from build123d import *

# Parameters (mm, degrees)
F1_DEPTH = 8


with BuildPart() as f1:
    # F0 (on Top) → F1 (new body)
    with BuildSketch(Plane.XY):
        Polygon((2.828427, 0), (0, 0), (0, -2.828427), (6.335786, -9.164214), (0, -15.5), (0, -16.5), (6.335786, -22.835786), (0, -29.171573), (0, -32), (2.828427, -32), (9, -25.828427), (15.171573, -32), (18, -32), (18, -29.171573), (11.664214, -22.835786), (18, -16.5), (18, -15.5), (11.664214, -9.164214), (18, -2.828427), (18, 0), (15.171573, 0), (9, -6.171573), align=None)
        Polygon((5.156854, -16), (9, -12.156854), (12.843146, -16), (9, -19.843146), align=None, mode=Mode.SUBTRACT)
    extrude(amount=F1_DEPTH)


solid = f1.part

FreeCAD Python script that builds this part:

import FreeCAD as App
import Part
import Sketcher

doc = App.newDocument("Part")
params = doc.addObject("Spreadsheet::Sheet", "Params")
for row, (alias, value) in enumerate([
    ("sketch1_height", "1 mm"),
    ("pad1_length", "8 mm"),
], start=1):
    params.set(f"A{row}", alias)
    params.set(f"B{row}", "=" + value)
    params.setAlias(f"B{row}", alias)

body = doc.addObject("PartDesign::Body", "Body")

# Sketch on XY plane
sketch1 = body.newObject("Sketcher::SketchObject", "Sketch")
sketch1.AttachmentSupport = (doc.getObject("XY_Plane"), [""])
sketch1.MapMode = "FlatFace"
sketch1.addGeometry([
    Part.LineSegment(App.Vector(2.828427, 0, 0), App.Vector(0, 0, 0)),  # 0
    Part.LineSegment(App.Vector(0, 0, 0), App.Vector(0, -2.828427, 0)),  # 1
    Part.LineSegment(App.Vector(0, -2.828427, 0), App.Vector(6.335786, -9.164214, 0)),  # 2
    Part.LineSegment(App.Vector(6.335786, -9.164214, 0), App.Vector(0, -15.5, 0)),  # 3
    Part.LineSegment(App.Vector(0, -15.5, 0), App.Vector(0, -16.5, 0)),  # 4
    Part.LineSegment(App.Vector(0, -16.5, 0), App.Vector(6.335786, -22.835786, 0)),  # 5
    Part.LineSegment(App.Vector(6.335786, -22.835786, 0), App.Vector(0, -29.171573, 0)),  # 6
    Part.LineSegment(App.Vector(0, -29.171573, 0), App.Vector(0, -32, 0)),  # 7
    Part.LineSegment(App.Vector(0, -32, 0), App.Vector(2.828427, -32, 0)),  # 8
    Part.LineSegment(App.Vector(2.828427, -32, 0), App.Vector(9, -25.828427, 0)),  # 9
    Part.LineSegment(App.Vector(9, -25.828427, 0), App.Vector(15.171573, -32, 0)),  # 10
    Part.LineSegment(App.Vector(15.171573, -32, 0), App.Vector(18, -32, 0)),  # 11
    Part.LineSegment(App.Vector(18, -32, 0), App.Vector(18, -29.171573, 0)),  # 12
    Part.LineSegment(App.Vector(18, -29.171573, 0), App.Vector(11.664214, -22.835786, 0)),  # 13
    Part.LineSegment(App.Vector(11.664214, -22.835786, 0), App.Vector(18, -16.5, 0)),  # 14
    Part.LineSegment(App.Vector(18, -16.5, 0), App.Vector(18, -15.5, 0)),  # 15
    Part.LineSegment(App.Vector(18, -15.5, 0), App.Vector(11.664214, -9.164214, 0)),  # 16
    Part.LineSegment(App.Vector(11.664214, -9.164214, 0), App.Vector(18, -2.828427, 0)),  # 17
    Part.LineSegment(App.Vector(18, -2.828427, 0), App.Vector(18, 0, 0)),  # 18
    Part.LineSegment(App.Vector(18, 0, 0), App.Vector(15.171573, 0, 0)),  # 19
    Part.LineSegment(App.Vector(15.171573, 0, 0), App.Vector(9, -6.171573, 0)),  # 20
    Part.LineSegment(App.Vector(9, -6.171573, 0), App.Vector(2.828427, 0, 0)),  # 21
    Part.LineSegment(App.Vector(9, -19.843146, 0), App.Vector(5.156854, -16, 0)),  # 22
    Part.LineSegment(App.Vector(5.156854, -16, 0), App.Vector(9, -12.156854, 0)),  # 23
    Part.LineSegment(App.Vector(9, -12.156854, 0), App.Vector(12.843146, -16, 0)),  # 24
    Part.LineSegment(App.Vector(12.843146, -16, 0), App.Vector(9, -19.843146, 0)),  # 25
], False)
sketch1.addConstraint([
    Sketcher.Constraint("Coincident", 0, 2, 1, 1),
    Sketcher.Constraint("Coincident", 1, 2, 2, 1),
    Sketcher.Constraint("Coincident", 2, 2, 3, 1),
    Sketcher.Constraint("Coincident", 3, 2, 4, 1),
    Sketcher.Constraint("Coincident", 4, 2, 5, 1),
    Sketcher.Constraint("Coincident", 5, 2, 6, 1),
    Sketcher.Constraint("Coincident", 6, 2, 7, 1),
    Sketcher.Constraint("Coincident", 7, 2, 8, 1),
    Sketcher.Constraint("Coincident", 8, 2, 9, 1),
    Sketcher.Constraint("Coincident", 9, 2, 10, 1),
    Sketcher.Constraint("Coincident", 10, 2, 11, 1),
    Sketcher.Constraint("Coincident", 11, 2, 12, 1),
    Sketcher.Constraint("Coincident", 12, 2, 13, 1),
    Sketcher.Constraint("Coincident", 13, 2, 14, 1),
    Sketcher.Constraint("Coincident", 14, 2, 15, 1),
    Sketcher.Constraint("Coincident", 15, 2, 16, 1),
    Sketcher.Constraint("Coincident", 16, 2, 17, 1),
    Sketcher.Constraint("Coincident", 17, 2, 18, 1),
    Sketcher.Constraint("Coincident", 18, 2, 19, 1),
    Sketcher.Constraint("Coincident", 19, 2, 20, 1),
    Sketcher.Constraint("Coincident", 20, 2, 21, 1),
    Sketcher.Constraint("Coincident", 21, 2, 0, 1),
    Sketcher.Constraint("Coincident", 22, 2, 23, 1),
    Sketcher.Constraint("Coincident", 23, 2, 24, 1),
    Sketcher.Constraint("Coincident", 24, 2, 25, 1),
    Sketcher.Constraint("Coincident", 25, 2, 22, 1),
    Sketcher.Constraint("Horizontal", 0),
    Sketcher.Constraint("Vertical", 1),
    Sketcher.Constraint("Vertical", 4),
    Sketcher.Constraint("Vertical", 7),
    Sketcher.Constraint("Horizontal", 8),
    Sketcher.Constraint("Horizontal", 11),
    Sketcher.Constraint("Vertical", 12),
    Sketcher.Constraint("Vertical", 15),
    Sketcher.Constraint("Vertical", 18),
    Sketcher.Constraint("Horizontal", 19),
    Sketcher.Constraint("Coincident", 0, 2, -1, 1),
    Sketcher.Constraint("PointOnObject", 3, 2, -2),
    Sketcher.Constraint("PointOnObject", 6, 2, -2),
    Sketcher.Constraint("PointOnObject", 18, 2, -1),
    Sketcher.Constraint("Perpendicular", 2, 3),
    Sketcher.Constraint("Perpendicular", 3, 5),
    Sketcher.Constraint("Perpendicular", 5, 6),
    Sketcher.Constraint("Parallel", 6, 9),
    Sketcher.Constraint("Perpendicular", 9, 10),
    Sketcher.Constraint("Parallel", 10, 13),
    Sketcher.Constraint("Perpendicular", 13, 14),
    Sketcher.Constraint("Perpendicular", 14, 16),
    Sketcher.Constraint("Perpendicular", 16, 17),
    Sketcher.Constraint("Parallel", 17, 20),
    Sketcher.Constraint("Perpendicular", 20, 21),
    Sketcher.Constraint("Parallel", 21, 22),
    Sketcher.Constraint("Perpendicular", 22, 23),
    Sketcher.Constraint("Perpendicular", 23, 24),
    Sketcher.Constraint("Perpendicular", 24, 25),
    Sketcher.Constraint("Horizontal", 8, 2, 10, 2),
    Sketcher.Constraint("Horizontal", 6, 2, 12, 2),
    Sketcher.Constraint("Horizontal", 5, 2, 13, 2),
    Sketcher.Constraint("Horizontal", 4, 2, 14, 2),
    Sketcher.Constraint("Horizontal", 3, 2, 15, 2),
    Sketcher.Constraint("Horizontal", 2, 2, 16, 2),
    Sketcher.Constraint("Horizontal", 1, 2, 17, 2),
    Sketcher.Constraint("Horizontal", 22, 2, 24, 2),
    Sketcher.Constraint("Vertical", 2, 2, 5, 2),
    Sketcher.Constraint("Vertical", 12, 2, 14, 2),
    Sketcher.Constraint("Vertical", 10, 2, 19, 2),
    Sketcher.Constraint("Vertical", 9, 2, 20, 2),
    Sketcher.Constraint("Vertical", 20, 2, 23, 2),
    Sketcher.Constraint("Equal", 8, 11),
    Sketcher.Constraint("Equal", 19, 1),
    Sketcher.Constraint("Equal", 1, 7),
    Sketcher.Constraint("DistanceY", 4, 2, 4, 1, 1.0),
    Sketcher.Constraint("DistanceY", 7, 2, -1, 1, 32.0),
    Sketcher.Constraint("DistanceX", -1, 1, 9, 2, 9.0),
    Sketcher.Constraint("DistanceY", 22, 2, -1, 1, 16.0),
    Sketcher.Constraint("Distance", 22, 5.435029),
    Sketcher.Constraint("DistanceX", 0, 2, 0, 1, 2.828427),
])
sketch1.setExpression("Constraints[71]", "Params.sketch1_height")
pad1 = body.newObject("PartDesign::Pad", "Pad")
pad1.Profile = sketch1
pad1.setExpression("Length", "Params.pad1_length")

doc.recompute()
